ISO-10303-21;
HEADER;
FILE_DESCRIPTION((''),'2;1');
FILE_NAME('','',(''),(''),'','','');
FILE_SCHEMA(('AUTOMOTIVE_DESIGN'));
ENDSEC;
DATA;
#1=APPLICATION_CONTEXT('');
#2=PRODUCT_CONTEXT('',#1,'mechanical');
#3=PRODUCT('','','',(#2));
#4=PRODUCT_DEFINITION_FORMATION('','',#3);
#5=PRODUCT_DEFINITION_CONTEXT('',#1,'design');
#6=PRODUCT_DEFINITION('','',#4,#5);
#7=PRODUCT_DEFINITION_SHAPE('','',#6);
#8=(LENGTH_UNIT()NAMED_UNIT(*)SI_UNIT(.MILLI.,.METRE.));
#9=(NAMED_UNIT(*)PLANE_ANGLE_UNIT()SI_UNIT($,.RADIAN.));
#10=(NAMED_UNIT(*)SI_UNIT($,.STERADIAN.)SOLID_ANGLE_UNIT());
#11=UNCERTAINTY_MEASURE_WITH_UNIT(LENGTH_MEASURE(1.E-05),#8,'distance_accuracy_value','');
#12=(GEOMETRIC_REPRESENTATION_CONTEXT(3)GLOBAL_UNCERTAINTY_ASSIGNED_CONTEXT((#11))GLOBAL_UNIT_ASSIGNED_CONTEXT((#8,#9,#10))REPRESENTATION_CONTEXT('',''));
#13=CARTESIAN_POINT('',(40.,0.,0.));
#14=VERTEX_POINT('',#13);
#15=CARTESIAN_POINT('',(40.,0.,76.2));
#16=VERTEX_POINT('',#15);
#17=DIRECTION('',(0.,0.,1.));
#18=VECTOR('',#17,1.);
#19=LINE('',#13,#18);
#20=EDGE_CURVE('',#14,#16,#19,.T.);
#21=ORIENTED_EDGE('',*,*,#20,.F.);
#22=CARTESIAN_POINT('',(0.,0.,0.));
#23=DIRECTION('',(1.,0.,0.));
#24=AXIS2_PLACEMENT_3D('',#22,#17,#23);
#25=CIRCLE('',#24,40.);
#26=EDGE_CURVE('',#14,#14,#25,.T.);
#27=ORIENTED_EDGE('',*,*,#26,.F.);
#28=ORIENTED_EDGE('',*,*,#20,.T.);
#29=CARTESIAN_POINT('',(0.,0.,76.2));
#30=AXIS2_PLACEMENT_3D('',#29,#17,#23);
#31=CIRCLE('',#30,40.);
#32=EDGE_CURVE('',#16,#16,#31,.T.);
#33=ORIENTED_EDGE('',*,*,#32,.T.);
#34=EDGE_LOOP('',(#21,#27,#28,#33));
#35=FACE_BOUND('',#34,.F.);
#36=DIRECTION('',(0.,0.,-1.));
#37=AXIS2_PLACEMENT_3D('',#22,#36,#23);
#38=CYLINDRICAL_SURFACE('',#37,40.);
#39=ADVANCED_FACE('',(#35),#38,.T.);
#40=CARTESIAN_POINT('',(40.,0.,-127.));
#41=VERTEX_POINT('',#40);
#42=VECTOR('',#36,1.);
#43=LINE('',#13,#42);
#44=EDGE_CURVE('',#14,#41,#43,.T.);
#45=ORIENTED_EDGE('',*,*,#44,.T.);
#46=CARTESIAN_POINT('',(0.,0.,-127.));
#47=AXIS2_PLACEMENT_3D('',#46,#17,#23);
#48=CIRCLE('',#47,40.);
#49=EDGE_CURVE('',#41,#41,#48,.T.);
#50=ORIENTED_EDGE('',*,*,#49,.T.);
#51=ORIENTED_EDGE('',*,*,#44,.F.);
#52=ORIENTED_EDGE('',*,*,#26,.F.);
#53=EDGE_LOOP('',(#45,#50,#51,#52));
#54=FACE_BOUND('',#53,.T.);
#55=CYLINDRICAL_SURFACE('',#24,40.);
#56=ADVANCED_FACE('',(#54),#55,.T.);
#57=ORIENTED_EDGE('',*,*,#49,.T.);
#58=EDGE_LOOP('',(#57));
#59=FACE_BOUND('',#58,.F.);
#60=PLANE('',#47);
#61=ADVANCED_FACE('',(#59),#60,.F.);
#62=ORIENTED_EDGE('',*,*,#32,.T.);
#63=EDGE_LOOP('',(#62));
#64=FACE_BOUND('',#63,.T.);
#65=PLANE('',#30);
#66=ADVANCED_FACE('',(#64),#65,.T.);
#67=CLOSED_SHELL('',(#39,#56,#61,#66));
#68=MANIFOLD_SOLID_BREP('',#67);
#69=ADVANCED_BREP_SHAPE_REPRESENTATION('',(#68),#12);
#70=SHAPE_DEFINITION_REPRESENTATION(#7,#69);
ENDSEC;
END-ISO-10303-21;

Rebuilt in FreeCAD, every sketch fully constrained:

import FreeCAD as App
import Part
import Sketcher
from FreeCAD import Vector

doc = App.newDocument("Part")
params = doc.addObject("Spreadsheet::Sheet", "Params")
for row, (alias, value) in enumerate([
    ("pad1_length", "5 in"),
    ("pad2_length", "3 in"),
], start=1):
    params.set(f"A{row}", alias)
    params.set(f"B{row}", "=" + value)
    params.setAlias(f"B{row}", alias)

body = doc.addObject("PartDesign::Body", "Body")

sketch1 = body.newObject("Sketcher::SketchObject", "Sketch")
sketch1.AttachmentSupport = (doc.getObject("XY_Plane"), [""])
sketch1.MapMode = "FlatFace"
sketch1.addGeometry(Part.Circle(Vector(0, 0, 0), Vector(0, 0, 1), 40), False)
sketch1.addConstraint(Sketcher.Constraint("Coincident", 0, 3, -1, 1))
sketch1.addConstraint(Sketcher.Constraint("Diameter", 0, 80.0))
pad1 = body.newObject("PartDesign::Pad", "Pad")
pad1.Profile = sketch1
pad1.setExpression("Length", "Params.pad1_length")
pad1.Reversed = True

sketch2 = body.newObject("Sketcher::SketchObject", "Sketch001")
sketch2.AttachmentSupport = (doc.getObject("XY_Plane"), [""])
sketch2.MapMode = "FlatFace"
sketch2.addGeometry(Part.Circle(Vector(0, 0, 0), Vector(0, 0, 1), 40), False)
sketch2.addConstraint(Sketcher.Constraint("Coincident", 0, 3, -1, 1))
sketch2.addConstraint(Sketcher.Constraint("Diameter", 0, 80.0))
pad2 = body.newObject("PartDesign::Pad", "Pad001")
pad2.Profile = sketch2
pad2.setExpression("Length", "Params.pad2_length")

doc.recompute()
